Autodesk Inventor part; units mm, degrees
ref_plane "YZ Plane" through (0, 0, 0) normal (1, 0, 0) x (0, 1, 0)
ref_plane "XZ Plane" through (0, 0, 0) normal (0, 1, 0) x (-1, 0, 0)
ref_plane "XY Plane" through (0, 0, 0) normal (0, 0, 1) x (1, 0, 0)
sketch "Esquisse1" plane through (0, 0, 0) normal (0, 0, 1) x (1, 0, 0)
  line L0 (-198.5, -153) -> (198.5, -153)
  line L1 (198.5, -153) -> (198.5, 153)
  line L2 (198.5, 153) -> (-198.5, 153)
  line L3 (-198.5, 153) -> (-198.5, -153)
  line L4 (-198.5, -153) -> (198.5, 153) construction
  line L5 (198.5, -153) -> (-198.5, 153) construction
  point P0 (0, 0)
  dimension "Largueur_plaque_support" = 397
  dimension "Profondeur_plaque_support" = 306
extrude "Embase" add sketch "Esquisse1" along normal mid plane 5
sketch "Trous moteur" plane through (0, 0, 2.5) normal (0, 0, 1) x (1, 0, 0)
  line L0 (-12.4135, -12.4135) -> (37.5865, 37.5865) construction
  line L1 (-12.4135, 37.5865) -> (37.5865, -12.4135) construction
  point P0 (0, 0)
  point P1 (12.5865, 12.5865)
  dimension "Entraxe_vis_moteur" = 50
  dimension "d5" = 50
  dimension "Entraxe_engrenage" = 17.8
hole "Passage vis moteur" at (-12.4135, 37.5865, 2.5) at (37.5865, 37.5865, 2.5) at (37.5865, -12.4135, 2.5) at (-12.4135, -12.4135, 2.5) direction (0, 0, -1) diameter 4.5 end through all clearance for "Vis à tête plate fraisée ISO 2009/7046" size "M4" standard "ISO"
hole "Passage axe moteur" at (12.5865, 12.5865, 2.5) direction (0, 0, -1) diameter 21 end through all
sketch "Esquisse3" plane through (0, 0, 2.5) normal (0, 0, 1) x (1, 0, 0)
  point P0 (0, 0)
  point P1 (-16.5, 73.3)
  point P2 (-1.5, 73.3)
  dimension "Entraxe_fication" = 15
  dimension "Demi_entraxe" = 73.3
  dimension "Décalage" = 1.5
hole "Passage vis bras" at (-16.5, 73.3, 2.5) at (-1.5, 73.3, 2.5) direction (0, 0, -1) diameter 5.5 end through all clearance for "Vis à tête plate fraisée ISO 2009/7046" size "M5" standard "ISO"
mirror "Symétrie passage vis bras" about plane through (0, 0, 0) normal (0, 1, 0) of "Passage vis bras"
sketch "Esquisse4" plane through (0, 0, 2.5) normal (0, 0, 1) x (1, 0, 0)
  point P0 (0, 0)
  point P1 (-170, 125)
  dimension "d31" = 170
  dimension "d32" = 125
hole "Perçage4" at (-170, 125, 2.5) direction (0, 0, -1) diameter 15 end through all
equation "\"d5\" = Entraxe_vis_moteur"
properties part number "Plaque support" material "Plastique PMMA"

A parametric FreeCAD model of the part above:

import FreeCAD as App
import Part
import Sketcher
Q = App.Units.Quantity


def add_polygon(sketch, points):
    """Adds a closed chain of lines whose ends are joined by coincident constraints."""
    first, n = sketch.GeometryCount, len(points)
    for a, b in zip(points, points[1:] + points[:1]):
        sketch.addGeometry(Part.LineSegment(App.Vector(*a, 0), App.Vector(*b, 0)), False)
    for i in range(n):
        sketch.addConstraint(Sketcher.Constraint("Coincident", first + i, 2, first + (i + 1) % n, 1))

doc = App.newDocument("Part")
body = doc.addObject("PartDesign::Body", "Body")

sketch1 = body.newObject("Sketcher::SketchObject", "Sketch")
sketch1.AttachmentSupport = (doc.getObject("XY_Plane"), [""])
sketch1.MapMode = "FlatFace"
add_polygon(sketch1, [(-198, 153), (-198, -153), (198, -153), (198, 153)])
sketch1.addConstraint(Sketcher.Constraint("Vertical", 0))
sketch1.addConstraint(Sketcher.Constraint("Horizontal", 1))
sketch1.addConstraint(Sketcher.Constraint("Vertical", 2))
sketch1.addConstraint(Sketcher.Constraint("Horizontal", 3))
sketch1.addConstraint(Sketcher.Constraint("Symmetric", 0, 2, 2, 2, -1, 1))
sketch1.addConstraint(Sketcher.Constraint("DistanceX", 1, 1, 1, 2, Q("397 mm")))
sketch1.addConstraint(Sketcher.Constraint("DistanceY", 0, 2, 0, 1, Q("306 mm")))
pad1 = body.newObject("PartDesign::Pad", "Pad")
pad1.Profile = sketch1
pad1.Length = 5
pad1.Midplane = True

sketch2 = body.newObject("Sketcher::SketchObject", "Sketch001")
sketch2.AttachmentSupport = (doc.getObject("XY_Plane"), [""])
sketch2.MapMode = "FlatFace"
sketch2.AttachmentOffset = App.Placement(App.Vector(0, 0, 2.5), App.Rotation())
sketch2.addGeometry(Part.Circle(App.Vector(-12.4, 37.6, 0), App.Vector(0, 0, 1), 2.2), False)
sketch2.addGeometry(Part.Circle(App.Vector(37.6, 37.6, 0), App.Vector(0, 0, 1), 2.2), False)
sketch2.addGeometry(Part.Circle(App.Vector(37.6, -12.4, 0), App.Vector(0, 0, 1), 2.2), False)
sketch2.addGeometry(Part.Circle(App.Vector(-12.4, -12.4, 0), App.Vector(0, 0, 1), 2.2), False)
sketch2.addConstraint(Sketcher.Constraint("Equal", 0, 1))
sketch2.addConstraint(Sketcher.Constraint("Equal", 1, 2))
sketch2.addConstraint(Sketcher.Constraint("Equal", 2, 3))
sketch2.addConstraint(Sketcher.Constraint("Horizontal", 0, 3, 1, 3))
sketch2.addConstraint(Sketcher.Constraint("Horizontal", 2, 3, 3, 3))
sketch2.addConstraint(Sketcher.Constraint("Vertical", 1, 3, 2, 3))
sketch2.addConstraint(Sketcher.Constraint("Vertical", 0, 3, 3, 3))
sketch2.addConstraint(Sketcher.Constraint("Diameter", 0, Q("4.5 mm")))
sketch2.addConstraint(Sketcher.Constraint("DistanceX", 0, 3, 1, 3, Q("50 mm")))
sketch2.addConstraint(Sketcher.Constraint("DistanceY", 2, 3, 1, 3, Q("50 mm")))
sketch2.addConstraint(Sketcher.Constraint("DistanceX", 0, 3, -1, 1, Q("12.4135 mm")))
sketch2.addConstraint(Sketcher.Constraint("DistanceY", -1, 1, 0, 3, Q("37.5865 mm")))
doc.recompute()
hole = body.newObject("PartDesign::Hole", "Hole")
hole.Profile = sketch2
hole.ThreadType = "None"
hole.Diameter = 4.5
hole.DepthType = "ThroughAll"

sketch3 = body.newObject("Sketcher::SketchObject", "Sketch002")
sketch3.AttachmentSupport = (doc.getObject("XY_Plane"), [""])
sketch3.MapMode = "FlatFace"
sketch3.AttachmentOffset = App.Placement(App.Vector(0, 0, 2.5), App.Rotation())
sketch3.addGeometry(Part.Circle(App.Vector(13, 13, 0), App.Vector(0, 0, 1), 10), False)
sketch3.addConstraint(Sketcher.Constraint("Diameter", 0, Q("21 mm")))
sketch3.addConstraint(Sketcher.Constraint("DistanceX", -1, 1, 0, 3, Q("12.5865 mm")))
sketch3.addConstraint(Sketcher.Constraint("DistanceY", -1, 1, 0, 3, Q("12.5865 mm")))
doc.recompute()
hole2 = body.newObject("PartDesign::Hole", "Hole001")
hole2.Profile = sketch3
hole2.ThreadType = "None"
hole2.Diameter = 21
hole2.DepthType = "ThroughAll"

sketch4 = body.newObject("Sketcher::SketchObject", "Sketch003")
sketch4.AttachmentSupport = (doc.getObject("XY_Plane"), [""])
sketch4.MapMode = "FlatFace"
sketch4.AttachmentOffset = App.Placement(App.Vector(0, 0, 2.5), App.Rotation())
sketch4.addGeometry(Part.Circle(App.Vector(-16.5, 73.3, 0), App.Vector(0, 0, 1), 2.8), False)
sketch4.addGeometry(Part.Circle(App.Vector(-1.5, 73.3, 0), App.Vector(0, 0, 1), 2.8), False)
sketch4.addConstraint(Sketcher.Constraint("Equal", 0, 1))
sketch4.addConstraint(Sketcher.Constraint("Horizontal", 0, 3, 1, 3))
sketch4.addConstraint(Sketcher.Constraint("Diameter", 0, Q("5.5 mm")))
sketch4.addConstraint(Sketcher.Constraint("DistanceX", 0, 3, 1, 3, Q("15 mm")))
sketch4.addConstraint(Sketcher.Constraint("DistanceX", 0, 3, -1, 1, Q("16.5 mm")))
sketch4.addConstraint(Sketcher.Constraint("DistanceY", -1, 1, 0, 3, Q("73.3 mm")))
doc.recompute()
hole3 = body.newObject("PartDesign::Hole", "Hole002")
hole3.Profile = sketch4
hole3.ThreadType = "None"
hole3.Diameter = 5.5
hole3.DepthType = "ThroughAll"
doc.recompute()

mirrored = body.newObject("PartDesign::Mirrored", "Mirrored")
mirrored.Originals = [hole3]
mirrored.MirrorPlane = (doc.getObject("XZ_Plane"), [""])
body.Tip = mirrored

sketch5 = body.newObject("Sketcher::SketchObject", "Sketch004")
sketch5.AttachmentSupport = (doc.getObject("XY_Plane"), [""])
sketch5.MapMode = "FlatFace"
sketch5.AttachmentOffset = App.Placement(App.Vector(0, 0, 2.5), App.Rotation())
sketch5.addGeometry(Part.Circle(App.Vector(-170, 125, 0), App.Vector(0, 0, 1), 8), False)
sketch5.addConstraint(Sketcher.Constraint("Diameter", 0, Q("15 mm")))
sketch5.addConstraint(Sketcher.Constraint("DistanceX", 0, 3, -1, 1, Q("170 mm")))
sketch5.addConstraint(Sketcher.Constraint("DistanceY", -1, 1, 0, 3, Q("125 mm")))
doc.recompute()
hole4 = body.newObject("PartDesign::Hole", "Hole003")
hole4.Profile = sketch5
hole4.ThreadType = "None"
hole4.Diameter = 15
hole4.DepthType = "ThroughAll"

doc.recompute()
